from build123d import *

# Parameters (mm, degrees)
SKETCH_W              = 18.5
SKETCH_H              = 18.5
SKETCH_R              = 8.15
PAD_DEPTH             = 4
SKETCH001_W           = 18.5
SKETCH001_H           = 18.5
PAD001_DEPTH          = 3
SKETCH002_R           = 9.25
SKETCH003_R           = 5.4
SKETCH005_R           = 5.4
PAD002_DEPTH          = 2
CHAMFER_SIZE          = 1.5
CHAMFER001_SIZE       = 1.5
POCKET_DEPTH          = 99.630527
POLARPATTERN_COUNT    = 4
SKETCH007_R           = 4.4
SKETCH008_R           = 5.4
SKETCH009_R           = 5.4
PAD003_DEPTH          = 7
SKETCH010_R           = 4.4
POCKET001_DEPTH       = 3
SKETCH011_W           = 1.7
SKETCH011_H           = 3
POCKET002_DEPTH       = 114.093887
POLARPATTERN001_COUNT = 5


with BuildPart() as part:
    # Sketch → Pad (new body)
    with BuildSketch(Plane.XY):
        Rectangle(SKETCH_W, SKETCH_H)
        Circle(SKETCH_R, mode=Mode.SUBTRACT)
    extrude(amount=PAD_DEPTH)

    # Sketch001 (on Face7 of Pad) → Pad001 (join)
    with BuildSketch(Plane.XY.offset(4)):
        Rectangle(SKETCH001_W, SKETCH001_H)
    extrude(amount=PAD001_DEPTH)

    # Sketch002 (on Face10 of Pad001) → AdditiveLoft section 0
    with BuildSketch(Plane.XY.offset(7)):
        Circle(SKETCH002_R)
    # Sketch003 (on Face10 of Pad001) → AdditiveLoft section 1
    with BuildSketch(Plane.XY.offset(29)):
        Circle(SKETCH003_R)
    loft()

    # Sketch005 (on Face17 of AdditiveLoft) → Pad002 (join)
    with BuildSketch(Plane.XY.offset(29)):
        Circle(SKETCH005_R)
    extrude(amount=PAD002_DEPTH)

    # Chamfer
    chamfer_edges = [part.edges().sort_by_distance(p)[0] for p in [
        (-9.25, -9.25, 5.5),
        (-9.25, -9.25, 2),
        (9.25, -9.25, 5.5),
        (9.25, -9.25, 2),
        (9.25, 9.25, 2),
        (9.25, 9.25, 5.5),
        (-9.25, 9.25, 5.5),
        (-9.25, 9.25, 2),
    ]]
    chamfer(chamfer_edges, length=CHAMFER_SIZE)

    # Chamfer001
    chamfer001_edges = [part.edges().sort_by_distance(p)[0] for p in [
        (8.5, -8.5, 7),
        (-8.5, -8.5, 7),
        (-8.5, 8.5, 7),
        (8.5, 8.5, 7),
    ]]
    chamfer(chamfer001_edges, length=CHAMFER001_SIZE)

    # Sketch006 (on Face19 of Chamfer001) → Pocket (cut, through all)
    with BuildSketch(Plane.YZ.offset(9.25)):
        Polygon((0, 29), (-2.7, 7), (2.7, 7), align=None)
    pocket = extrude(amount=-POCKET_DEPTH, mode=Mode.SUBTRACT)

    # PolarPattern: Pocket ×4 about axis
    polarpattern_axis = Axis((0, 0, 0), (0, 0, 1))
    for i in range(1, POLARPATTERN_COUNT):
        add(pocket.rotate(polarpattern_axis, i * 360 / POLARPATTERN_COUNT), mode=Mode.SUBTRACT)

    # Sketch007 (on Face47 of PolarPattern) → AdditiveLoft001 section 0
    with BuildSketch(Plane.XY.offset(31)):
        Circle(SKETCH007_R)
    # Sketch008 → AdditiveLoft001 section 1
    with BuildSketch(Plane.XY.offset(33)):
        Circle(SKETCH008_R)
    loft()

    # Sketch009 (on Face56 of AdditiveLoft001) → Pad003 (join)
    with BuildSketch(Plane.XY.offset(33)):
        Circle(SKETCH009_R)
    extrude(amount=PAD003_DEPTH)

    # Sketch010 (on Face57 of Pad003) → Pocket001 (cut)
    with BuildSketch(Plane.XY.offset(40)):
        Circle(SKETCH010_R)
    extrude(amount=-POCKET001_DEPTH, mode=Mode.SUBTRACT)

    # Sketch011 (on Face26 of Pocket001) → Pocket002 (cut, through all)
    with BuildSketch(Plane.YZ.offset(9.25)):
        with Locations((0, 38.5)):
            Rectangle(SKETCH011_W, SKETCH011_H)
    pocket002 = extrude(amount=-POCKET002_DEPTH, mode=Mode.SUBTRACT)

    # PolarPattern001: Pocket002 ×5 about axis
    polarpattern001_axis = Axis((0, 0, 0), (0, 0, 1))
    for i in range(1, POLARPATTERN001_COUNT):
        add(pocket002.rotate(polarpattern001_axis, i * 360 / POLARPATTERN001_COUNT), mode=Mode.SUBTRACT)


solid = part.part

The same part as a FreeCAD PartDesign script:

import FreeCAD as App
import Part
import Sketcher

V = App.Vector
Q = App.Units.Quantity


def edges_at(feature, points):
    """Names of the edges that pass closest to the given points."""
    edges = feature.Shape.Edges
    near = lambda p: min(range(len(edges)), key=lambda i: edges[i].distToShape(Part.Vertex(*p))[0])
    return sorted({f"Edge{near(p) + 1}" for p in points})


def add_polygon(sketch, points):
    """Adds a closed chain of lines whose ends are joined by coincident constraints."""
    first, n = sketch.GeometryCount, len(points)
    for a, b in zip(points, points[1:] + points[:1]):
        sketch.addGeometry(Part.LineSegment(App.Vector(*a, 0), App.Vector(*b, 0)), False)
    for i in range(n):
        sketch.addConstraint(Sketcher.Constraint("Coincident", first + i, 2, first + (i + 1) % n, 1))

doc = App.newDocument("Part")
body = doc.addObject("PartDesign::Body", "Body")

# Sketch on XY plane
sketch1 = doc.addObject("Sketcher::SketchObject", "Sketch")
body.addObject(sketch1)
sketch1.AttachmentSupport = (doc.XY_Plane, [""])
sketch1.MapMode = "FlatFace"
add_polygon(sketch1, [(-9.25, 9.25), (-9.25, -9.25), (9.25, -9.25), (9.25, 9.25)])  # lines 0-3
sketch1.addGeometry(Part.Circle(V(0, 0, 0), V(0, 0, 1), 8.15), False)  # 4
sketch1.addConstraint(Sketcher.Constraint("Vertical", 0))
sketch1.addConstraint(Sketcher.Constraint("Horizontal", 1))
sketch1.addConstraint(Sketcher.Constraint("Vertical", 2))
sketch1.addConstraint(Sketcher.Constraint("Horizontal", 3))
sketch1.addConstraint(Sketcher.Constraint("Coincident", 4, 3, -1, 1))
sketch1.addConstraint(Sketcher.Constraint("Symmetric", 0, 2, 2, 2, -1, 1))
sketch1.addConstraint(Sketcher.Constraint("Equal", 3, 0))
sketch1.addConstraint(Sketcher.Constraint("Diameter", 4, Q("16.3 mm")))
sketch1.addConstraint(Sketcher.Constraint("DistanceX", 1, 1, 1, 2, Q("18.5 mm")))
pad1 = doc.addObject("PartDesign::Pad", "Pad")
body.addObject(pad1)
pad1.Profile = sketch1
pad1.Length = 4

# Sketch on XY plane
sketch2 = doc.addObject("Sketcher::SketchObject", "Sketch001")
body.addObject(sketch2)
sketch2.AttachmentSupport = (doc.XY_Plane, [""])
sketch2.MapMode = "FlatFace"
sketch2.AttachmentOffset = App.Placement(V(0, 0, 4), App.Rotation())
add_polygon(sketch2, [(-9.25, 9.25), (-9.25, -9.25), (9.25, -9.25), (9.25, 9.25)])  # lines 0-3
sketch2.addConstraint(Sketcher.Constraint("Vertical", 0))
sketch2.addConstraint(Sketcher.Constraint("Horizontal", 1))
sketch2.addConstraint(Sketcher.Constraint("Vertical", 2))
sketch2.addConstraint(Sketcher.Constraint("Horizontal", 3))
sketch2.addConstraint(Sketcher.Constraint("Symmetric", 0, 2, 2, 2, -1, 1))
sketch2.addConstraint(Sketcher.Constraint("Equal", 3, 0))
sketch2.addConstraint(Sketcher.Constraint("DistanceX", 1, 1, 1, 2, Q("18.5 mm")))
pad2 = doc.addObject("PartDesign::Pad", "Pad001")
body.addObject(pad2)
pad2.Profile = sketch2
pad2.Length = 3

# Sketch on XY plane
sketch3 = doc.addObject("Sketcher::SketchObject", "Sketch002")
body.addObject(sketch3)
sketch3.AttachmentSupport = (doc.XY_Plane, [""])
sketch3.MapMode = "FlatFace"
sketch3.AttachmentOffset = App.Placement(V(0, 0, 7), App.Rotation())
sketch3.addGeometry(Part.Circle(V(0, 0, 0), V(0, 0, 1), 9.25), False)
sketch3.addConstraint(Sketcher.Constraint("Coincident", 0, 3, -1, 1))
sketch3.addConstraint(Sketcher.Constraint("Diameter", 0, Q("18.5 mm")))

# Sketch on XY plane
sketch4 = doc.addObject("Sketcher::SketchObject", "Sketch003")
body.addObject(sketch4)
sketch4.AttachmentSupport = (doc.XY_Plane, [""])
sketch4.MapMode = "FlatFace"
sketch4.AttachmentOffset = App.Placement(V(0, 0, 29), App.Rotation())
sketch4.addGeometry(Part.Circle(V(0, 0, 0), V(0, 0, 1), 5.4), False)
sketch4.addConstraint(Sketcher.Constraint("Coincident", 0, 3, -1, 1))
sketch4.addConstraint(Sketcher.Constraint("Diameter", 0, Q("10.8 mm")))

additiveloft = doc.addObject("PartDesign::AdditiveLoft", "AdditiveLoft")
body.addObject(additiveloft)
additiveloft.Profile = sketch3
additiveloft.Sections = [sketch4]

# Sketch on XY plane
sketch5 = doc.addObject("Sketcher::SketchObject", "Sketch004")
body.addObject(sketch5)
sketch5.AttachmentSupport = (doc.XY_Plane, [""])
sketch5.MapMode = "FlatFace"
sketch5.AttachmentOffset = App.Placement(V(0, 0, 29), App.Rotation())
sketch5.addGeometry(Part.Circle(V(0, 0, 0), V(0, 0, 1), 5.4), False)
sketch5.addConstraint(Sketcher.Constraint("Coincident", 0, 3, -1, 1))
sketch5.addConstraint(Sketcher.Constraint("Diameter", 0, Q("10.8 mm")))
pad3 = doc.addObject("PartDesign::Pad", "Pad002")
body.addObject(pad3)
pad3.Profile = sketch5
pad3.Length = 2
doc.recompute()

chamfer = doc.addObject("PartDesign::Chamfer", "Chamfer")
body.addObject(chamfer)
chamfer.Base = (pad3, edges_at(pad3, [
    (-9.25, -9.25, 3.5),
    (-9.25, -9.25, 3.5),
    (9.25, -9.25, 3.5),
    (9.25, -9.25, 3.5),
    (9.25, 9.25, 3.5),
    (9.25, 9.25, 3.5),
    (-9.25, 9.25, 3.5),
    (-9.25, 9.25, 3.5),
]))
chamfer.Size = 1.5
doc.recompute()

chamfer2 = doc.addObject("PartDesign::Chamfer", "Chamfer001")
body.addObject(chamfer2)
chamfer2.Base = (chamfer, edges_at(chamfer, [
    (8.5, -8.5, 7),
    (-8.5, -8.5, 7),
    (-8.5, 8.5, 7),
    (8.5, 8.5, 7),
]))
chamfer2.Size = 1.5

# Sketch on YZ plane
sketch6 = doc.addObject("Sketcher::SketchObject", "Sketch005")
body.addObject(sketch6)
sketch6.AttachmentSupport = (doc.YZ_Plane, [""])
sketch6.MapMode = "FlatFace"
sketch6.AttachmentOffset = App.Placement(V(0, 0, 9.25), App.Rotation())
add_polygon(sketch6, [(0, 29), (-2.7, 7), (2.7, 7)])  # lines 0-2
sketch6.addConstraint(Sketcher.Constraint("Horizontal", 1))
sketch6.addConstraint(Sketcher.Constraint("PointOnObject", 2, 2, -2))
sketch6.addConstraint(Sketcher.Constraint("Equal", 0, 2))
sketch6.addConstraint(Sketcher.Constraint("DistanceX", 1, 1, 1, 2, Q("5.4 mm")))
sketch6.addConstraint(Sketcher.Constraint("DistanceY", -1, 1, 0, 2, Q("7 mm")))
sketch6.addConstraint(Sketcher.Constraint("DistanceY", -1, 1, 2, 2, Q("29 mm")))
pocket1 = doc.addObject("PartDesign::Pocket", "Pocket")
body.addObject(pocket1)
pocket1.Profile = sketch6
pocket1.Type = "ThroughAll"
doc.recompute()

polarpattern = doc.addObject("PartDesign::PolarPattern", "PolarPattern")
body.addObject(polarpattern)
polarpattern.Originals = [pocket1]
polarpattern.Axis = (doc.Z_Axis, [""])
polarpattern.Angle = 360
polarpattern.Occurrences = 4
body.Tip = polarpattern

# Sketch on XY plane
sketch7 = doc.addObject("Sketcher::SketchObject", "Sketch006")
body.addObject(sketch7)
sketch7.AttachmentSupport = (doc.XY_Plane, [""])
sketch7.MapMode = "FlatFace"
sketch7.AttachmentOffset = App.Placement(V(0, 0, 31), App.Rotation())
sketch7.addGeometry(Part.Circle(V(0, 0, 0), V(0, 0, 1), 4.4), False)
sketch7.addConstraint(Sketcher.Constraint("Coincident", 0, 3, -1, 1))
sketch7.addConstraint(Sketcher.Constraint("Diameter", 0, Q("8.8 mm")))

# Sketch on XY plane
sketch8 = doc.addObject("Sketcher::SketchObject", "Sketch007")
body.addObject(sketch8)
sketch8.AttachmentSupport = (doc.XY_Plane, [""])
sketch8.MapMode = "FlatFace"
sketch8.AttachmentOffset = App.Placement(V(0, 0, 33), App.Rotation())
sketch8.addGeometry(Part.Circle(V(0, 0, 0), V(0, 0, 1), 5.4), False)
sketch8.addConstraint(Sketcher.Constraint("Coincident", 0, 3, -1, 1))
sketch8.addConstraint(Sketcher.Constraint("Diameter", 0, Q("10.8 mm")))

additiveloft2 = doc.addObject("PartDesign::AdditiveLoft", "AdditiveLoft001")
body.addObject(additiveloft2)
additiveloft2.Profile = sketch7
additiveloft2.Sections = [sketch8]

# Sketch on XY plane
sketch9 = doc.addObject("Sketcher::SketchObject", "Sketch008")
body.addObject(sketch9)
sketch9.AttachmentSupport = (doc.XY_Plane, [""])
sketch9.MapMode = "FlatFace"
sketch9.AttachmentOffset = App.Placement(V(0, 0, 33), App.Rotation())
sketch9.addGeometry(Part.Circle(V(0, 0, 0), V(0, 0, 1), 5.4), False)
sketch9.addConstraint(Sketcher.Constraint("Coincident", 0, 3, -1, 1))
sketch9.addConstraint(Sketcher.Constraint("Diameter", 0, Q("10.8 mm")))
pad4 = doc.addObject("PartDesign::Pad", "Pad003")
body.addObject(pad4)
pad4.Profile = sketch9
pad4.Length = 7

# Sketch on XY plane
sketch10 = doc.addObject("Sketcher::SketchObject", "Sketch009")
body.addObject(sketch10)
sketch10.AttachmentSupport = (doc.XY_Plane, [""])
sketch10.MapMode = "FlatFace"
sketch10.AttachmentOffset = App.Placement(V(0, 0, 40), App.Rotation())
sketch10.addGeometry(Part.Circle(V(0, 0, 0), V(0, 0, 1), 4.4), False)
sketch10.addConstraint(Sketcher.Constraint("Coincident", 0, 3, -1, 1))
sketch10.addConstraint(Sketcher.Constraint("Diameter", 0, Q("8.8 mm")))
pocket2 = doc.addObject("PartDesign::Pocket", "Pocket001")
body.addObject(pocket2)
pocket2.Profile = sketch10
pocket2.Length = 3

# Sketch on YZ plane
sketch11 = doc.addObject("Sketcher::SketchObject", "Sketch010")
body.addObject(sketch11)
sketch11.AttachmentSupport = (doc.YZ_Plane, [""])
sketch11.MapMode = "FlatFace"
sketch11.AttachmentOffset = App.Placement(V(0, 0, 9.25), App.Rotation())
add_polygon(sketch11, [(-0.85, 40), (-0.85, 37), (0.85, 37), (0.85, 40)])  # lines 0-3
sketch11.addConstraint(Sketcher.Constraint("Vertical", 0))
sketch11.addConstraint(Sketcher.Constraint("Horizontal", 1))
sketch11.addConstraint(Sketcher.Constraint("Vertical", 2))
sketch11.addConstraint(Sketcher.Constraint("Horizontal", 3))
sketch11.addConstraint(Sketcher.Constraint("DistanceY", 0, 2, 0, 1, Q("3 mm")))
sketch11.addConstraint(Sketcher.Constraint("DistanceX", 1, 1, 1, 2, Q("1.7 mm")))
sketch11.addConstraint(Sketcher.Constraint("DistanceY", -1, 1, 0, 2, Q("37 mm")))
sketch11.addConstraint(Sketcher.Constraint("DistanceX", 0, 2, -1, 1, Q("0.85 mm")))
pocket3 = doc.addObject("PartDesign::Pocket", "Pocket002")
body.addObject(pocket3)
pocket3.Profile = sketch11
pocket3.Type = "ThroughAll"
doc.recompute()

polarpattern2 = doc.addObject("PartDesign::PolarPattern", "PolarPattern001")
body.addObject(polarpattern2)
polarpattern2.Originals = [pocket3]
polarpattern2.Axis = (doc.Z_Axis, [""])
polarpattern2.Angle = 360
polarpattern2.Occurrences = 5
body.Tip = polarpattern2

doc.recompute()
